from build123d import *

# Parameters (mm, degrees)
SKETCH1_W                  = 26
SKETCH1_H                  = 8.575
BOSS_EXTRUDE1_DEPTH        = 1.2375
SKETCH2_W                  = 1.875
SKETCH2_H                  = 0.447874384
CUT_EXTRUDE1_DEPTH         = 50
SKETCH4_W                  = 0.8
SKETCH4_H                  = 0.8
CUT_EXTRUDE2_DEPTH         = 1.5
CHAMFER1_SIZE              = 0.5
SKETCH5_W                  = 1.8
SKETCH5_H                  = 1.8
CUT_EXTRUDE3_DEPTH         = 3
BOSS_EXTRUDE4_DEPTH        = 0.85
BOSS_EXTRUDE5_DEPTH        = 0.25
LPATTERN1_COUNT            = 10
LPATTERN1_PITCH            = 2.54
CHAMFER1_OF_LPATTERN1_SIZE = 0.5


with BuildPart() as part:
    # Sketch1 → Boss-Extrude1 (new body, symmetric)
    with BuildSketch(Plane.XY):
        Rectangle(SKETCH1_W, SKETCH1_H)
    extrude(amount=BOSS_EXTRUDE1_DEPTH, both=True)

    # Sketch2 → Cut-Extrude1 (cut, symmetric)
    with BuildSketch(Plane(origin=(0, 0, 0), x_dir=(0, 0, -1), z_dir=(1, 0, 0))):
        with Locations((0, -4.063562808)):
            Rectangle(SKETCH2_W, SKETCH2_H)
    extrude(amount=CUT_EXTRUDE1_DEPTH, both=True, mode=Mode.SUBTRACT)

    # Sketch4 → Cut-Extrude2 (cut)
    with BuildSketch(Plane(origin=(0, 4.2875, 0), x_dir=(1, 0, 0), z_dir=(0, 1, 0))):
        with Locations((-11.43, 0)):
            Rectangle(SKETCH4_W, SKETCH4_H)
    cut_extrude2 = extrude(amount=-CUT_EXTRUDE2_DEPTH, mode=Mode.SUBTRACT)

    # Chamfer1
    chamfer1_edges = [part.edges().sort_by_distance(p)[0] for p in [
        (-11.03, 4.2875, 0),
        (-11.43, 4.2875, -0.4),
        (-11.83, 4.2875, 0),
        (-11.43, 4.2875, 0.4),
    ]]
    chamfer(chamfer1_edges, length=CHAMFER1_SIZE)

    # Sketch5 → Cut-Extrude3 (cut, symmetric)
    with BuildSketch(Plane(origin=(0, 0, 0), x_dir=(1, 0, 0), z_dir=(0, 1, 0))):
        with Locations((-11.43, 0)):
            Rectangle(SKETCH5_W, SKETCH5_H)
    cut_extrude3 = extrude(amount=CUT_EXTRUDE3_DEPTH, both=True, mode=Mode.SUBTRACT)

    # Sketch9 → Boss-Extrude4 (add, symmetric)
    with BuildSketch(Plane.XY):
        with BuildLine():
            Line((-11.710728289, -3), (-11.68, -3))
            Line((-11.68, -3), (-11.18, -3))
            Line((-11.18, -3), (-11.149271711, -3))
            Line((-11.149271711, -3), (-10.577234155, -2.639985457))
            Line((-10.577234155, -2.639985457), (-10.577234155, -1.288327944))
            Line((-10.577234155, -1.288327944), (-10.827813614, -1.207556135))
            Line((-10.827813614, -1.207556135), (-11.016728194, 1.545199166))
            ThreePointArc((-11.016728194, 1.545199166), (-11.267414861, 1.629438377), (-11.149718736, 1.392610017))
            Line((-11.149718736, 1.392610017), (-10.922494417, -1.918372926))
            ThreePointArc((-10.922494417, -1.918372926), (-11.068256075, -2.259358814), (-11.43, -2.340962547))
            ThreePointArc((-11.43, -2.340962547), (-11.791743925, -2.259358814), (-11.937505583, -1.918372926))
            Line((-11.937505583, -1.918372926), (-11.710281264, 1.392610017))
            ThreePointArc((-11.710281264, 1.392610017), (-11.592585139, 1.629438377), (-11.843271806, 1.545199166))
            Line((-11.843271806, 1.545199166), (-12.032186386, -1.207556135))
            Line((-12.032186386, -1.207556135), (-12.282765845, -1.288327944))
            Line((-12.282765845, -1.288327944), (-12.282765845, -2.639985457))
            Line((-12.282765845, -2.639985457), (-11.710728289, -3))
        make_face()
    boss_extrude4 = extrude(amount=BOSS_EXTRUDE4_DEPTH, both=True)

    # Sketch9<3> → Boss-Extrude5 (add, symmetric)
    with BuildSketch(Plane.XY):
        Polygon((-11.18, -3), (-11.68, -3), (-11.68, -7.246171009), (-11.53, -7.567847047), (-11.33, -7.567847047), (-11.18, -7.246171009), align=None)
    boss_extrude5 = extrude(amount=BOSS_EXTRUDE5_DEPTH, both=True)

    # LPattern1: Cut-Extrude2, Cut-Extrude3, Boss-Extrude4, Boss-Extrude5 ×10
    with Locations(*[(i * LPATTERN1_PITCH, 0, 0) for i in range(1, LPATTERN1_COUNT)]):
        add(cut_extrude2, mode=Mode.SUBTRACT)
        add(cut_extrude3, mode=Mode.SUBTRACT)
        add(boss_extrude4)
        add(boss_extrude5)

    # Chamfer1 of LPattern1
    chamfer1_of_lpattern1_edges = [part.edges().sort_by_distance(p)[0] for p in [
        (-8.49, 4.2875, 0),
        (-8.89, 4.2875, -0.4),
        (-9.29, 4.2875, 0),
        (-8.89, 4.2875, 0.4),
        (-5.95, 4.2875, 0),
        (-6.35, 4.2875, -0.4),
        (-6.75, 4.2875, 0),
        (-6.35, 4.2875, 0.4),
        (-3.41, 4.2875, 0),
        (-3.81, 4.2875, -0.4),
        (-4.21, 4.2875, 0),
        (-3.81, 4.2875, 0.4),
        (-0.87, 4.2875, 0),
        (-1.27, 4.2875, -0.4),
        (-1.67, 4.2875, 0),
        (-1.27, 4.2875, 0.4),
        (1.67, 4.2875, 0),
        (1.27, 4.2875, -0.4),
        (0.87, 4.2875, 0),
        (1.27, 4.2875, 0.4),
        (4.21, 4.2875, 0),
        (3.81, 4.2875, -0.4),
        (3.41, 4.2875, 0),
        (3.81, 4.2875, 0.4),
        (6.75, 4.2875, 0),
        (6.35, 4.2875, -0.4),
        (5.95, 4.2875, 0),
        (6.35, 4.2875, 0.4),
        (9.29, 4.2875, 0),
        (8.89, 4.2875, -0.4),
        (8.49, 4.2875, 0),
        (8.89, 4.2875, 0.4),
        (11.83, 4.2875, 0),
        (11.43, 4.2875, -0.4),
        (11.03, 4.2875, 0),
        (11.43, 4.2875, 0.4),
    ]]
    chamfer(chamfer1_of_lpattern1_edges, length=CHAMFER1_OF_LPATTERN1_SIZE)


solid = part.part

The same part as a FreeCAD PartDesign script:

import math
import FreeCAD as App
import Part
import Sketcher

V = App.Vector
Q = App.Units.Quantity


def edges_at(feature, points):
    """Names of the edges that pass closest to the given points."""
    edges = feature.Shape.Edges
    near = lambda p: min(range(len(edges)), key=lambda i: edges[i].distToShape(Part.Vertex(*p))[0])
    return sorted({f"Edge{near(p) + 1}" for p in points})


def add_polygon(sketch, points):
    """Adds a closed chain of lines whose ends are joined by coincident constraints."""
    first, n = sketch.GeometryCount, len(points)
    for a, b in zip(points, points[1:] + points[:1]):
        sketch.addGeometry(Part.LineSegment(App.Vector(*a, 0), App.Vector(*b, 0)), False)
    for i in range(n):
        sketch.addConstraint(Sketcher.Constraint("Coincident", first + i, 2, first + (i + 1) % n, 1))

doc = App.newDocument("Part")
body = doc.addObject("PartDesign::Body", "Body")

# Sketch on XY plane
sketch1 = body.newObject("Sketcher::SketchObject", "Sketch")
sketch1.AttachmentSupport = (doc.getObject("XY_Plane"), [""])
sketch1.MapMode = "FlatFace"
add_polygon(sketch1, [(-13, 4), (-13, -4), (13, -4), (13, 4)])  # lines 0-3
sketch1.addConstraint([
    Sketcher.Constraint("Vertical", 0),
    Sketcher.Constraint("Horizontal", 1),
    Sketcher.Constraint("Vertical", 2),
    Sketcher.Constraint("Horizontal", 3),
    Sketcher.Constraint("Symmetric", 0, 2, 2, 2, -1, 1),
    Sketcher.Constraint("DistanceX", 1, 1, 1, 2, 26.0),
    Sketcher.Constraint("DistanceY", 0, 2, 0, 1, 8.575),
])
pad1 = body.newObject("PartDesign::Pad", "Pad")
pad1.Profile = sketch1
pad1.Length = 2.475
pad1.Midplane = True

# Sketch on YZ plane
sketch2 = body.newObject("Sketcher::SketchObject", "Sketch001")
sketch2.AttachmentSupport = (doc.getObject("YZ_Plane"), [""])
sketch2.MapMode = "FlatFace"
add_polygon(sketch2, [(-3.84, 0.94), (-4.29, 0.94), (-4.29, -0.94), (-3.84, -0.94)])  # lines 0-3
sketch2.addConstraint([
    Sketcher.Constraint("Horizontal", 0),
    Sketcher.Constraint("Vertical", 1),
    Sketcher.Constraint("Horizontal", 2),
    Sketcher.Constraint("Vertical", 3),
    Sketcher.Constraint("DistanceY", 1, 2, 1, 1, 1.875),
    Sketcher.Constraint("DistanceX", 0, 2, -1, 1, 4.2875),
    Sketcher.Constraint("DistanceY", -1, 1, 0, 2, 0.9375),
    Sketcher.Constraint("DistanceX", 0, 2, 0, 1, 0.447874),
])
pocket1 = body.newObject("PartDesign::Pocket", "Pocket")
pocket1.Profile = sketch2
pocket1.Length = 100
pocket1.Midplane = True

# Sketch on XZ plane
sketch3 = body.newObject("Sketcher::SketchObject", "Sketch002")
sketch3.AttachmentSupport = (doc.getObject("XZ_Plane"), [""])
sketch3.MapMode = "FlatFace"
sketch3.AttachmentOffset = App.Placement(V(0, 0, -4.2875), App.Rotation())
add_polygon(sketch3, [(-11.8, -0.4), (-11.8, 0.4), (-11, 0.4), (-11, -0.4)])  # lines 0-3
sketch3.addConstraint([
    Sketcher.Constraint("Vertical", 0),
    Sketcher.Constraint("Horizontal", 1),
    Sketcher.Constraint("Vertical", 2),
    Sketcher.Constraint("Horizontal", 3),
    Sketcher.Constraint("Equal", 3, 0),
    Sketcher.Constraint("DistanceX", 1, 1, 1, 2, 0.8),
    Sketcher.Constraint("DistanceY", -1, 1, 0, 2, 0.4),
    Sketcher.Constraint("DistanceX", 0, 2, -1, 1, 11.83),
])
pocket2 = body.newObject("PartDesign::Pocket", "Pocket001")
pocket2.Profile = sketch3
pocket2.Length = 1.5
pocket2.Reversed = True
doc.recompute()

chamfer = body.newObject("PartDesign::Chamfer", "Chamfer")
chamfer.Base = (pocket2, edges_at(pocket2, [
    (-11.03, 4.287, 0),
    (-11.43, 4.287, -0.4),
    (-11.83, 4.287, 0),
    (-11.43, 4.287, 0.4),
]))
chamfer.Size = 0.5

# Sketch on XZ plane
sketch4 = body.newObject("Sketcher::SketchObject", "Sketch003")
sketch4.AttachmentSupport = (doc.getObject("XZ_Plane"), [""])
sketch4.MapMode = "FlatFace"
add_polygon(sketch4, [(-12.3, -0.9), (-12.3, 0.9), (-10.5, 0.9), (-10.5, -0.9)])  # lines 0-3
sketch4.addConstraint([
    Sketcher.Constraint("Vertical", 0),
    Sketcher.Constraint("Horizontal", 1),
    Sketcher.Constraint("Vertical", 2),
    Sketcher.Constraint("Horizontal", 3),
    Sketcher.Constraint("Equal", 3, 0),
    Sketcher.Constraint("DistanceX", 1, 1, 1, 2, 1.8),
    Sketcher.Constraint("DistanceY", -1, 1, 0, 2, 0.9),
    Sketcher.Constraint("DistanceX", 0, 2, -1, 1, 12.33),
])
pocket3 = body.newObject("PartDesign::Pocket", "Pocket002")
pocket3.Profile = sketch4
pocket3.Length = 6
pocket3.Midplane = True

# Sketch on XY plane
sketch5 = body.newObject("Sketcher::SketchObject", "Sketch004")
sketch5.AttachmentSupport = (doc.getObject("XY_Plane"), [""])
sketch5.MapMode = "FlatFace"
sketch5.addGeometry([
    Part.LineSegment(V(-11.71, -3, 0), V(-11.15, -3, 0)),  # 0
    Part.LineSegment(V(-11.15, -3, 0), V(-10.58, -2.64, 0)),  # 1
    Part.LineSegment(V(-10.58, -2.64, 0), V(-10.58, -1.29, 0)),  # 2
    Part.LineSegment(V(-10.58, -1.29, 0), V(-10.83, -1.21, 0)),  # 3
    Part.LineSegment(V(-10.83, -1.21, 0), V(-11.02, 1.55, 0)),  # 4
    Part.ArcOfCircle(Part.Circle(V(-11.16, 1.54, 0), V(0, 0, 1), 0.14), math.radians(4), math.radians(274)),  # 5
    Part.LineSegment(V(-11.15, 1.39, 0), V(-10.92, -1.92, 0)),  # 6
    Part.ArcOfCircle(Part.Circle(V(-11.33, -1.95, 0), V(0, 0, 1), 0.41), math.radians(-104), math.radians(4)),  # 7
    Part.ArcOfCircle(Part.Circle(V(-11.53, -1.95, 0), V(0, 0, 1), 0.41), math.radians(176), math.radians(284)),  # 8
    Part.LineSegment(V(-11.94, -1.92, 0), V(-11.71, 1.39, 0)),  # 9
    Part.ArcOfCircle(Part.Circle(V(-11.7, 1.54, 0), V(0, 0, 1), 0.14), math.radians(-94), math.radians(176)),  # 10
    Part.LineSegment(V(-11.84, 1.55, 0), V(-12.03, -1.21, 0)),  # 11
    Part.LineSegment(V(-12.03, -1.21, 0), V(-12.28, -1.29, 0)),  # 12
    Part.LineSegment(V(-12.28, -1.29, 0), V(-12.28, -2.64, 0)),  # 13
    Part.LineSegment(V(-12.28, -2.64, 0), V(-11.71, -3, 0)),  # 14
], False)
sketch5.addConstraint([
    Sketcher.Constraint("Coincident", 0, 2, 1, 1),
    Sketcher.Constraint("Coincident", 1, 2, 2, 1),
    Sketcher.Constraint("Coincident", 2, 2, 3, 1),
    Sketcher.Constraint("Coincident", 3, 2, 4, 1),
    Sketcher.Constraint("Tangent", 4, 2, 5, 1),
    Sketcher.Constraint("Coincident", 5, 2, 6, 1),
    Sketcher.Constraint("Tangent", 6, 2, 7, 2),
    Sketcher.Constraint("Coincident", 7, 1, 8, 2),
    Sketcher.Constraint("Tangent", 8, 1, 9, 1),
    Sketcher.Constraint("Coincident", 9, 2, 10, 1),
    Sketcher.Constraint("Tangent", 10, 2, 11, 1),
    Sketcher.Constraint("Coincident", 11, 2, 12, 1),
    Sketcher.Constraint("Coincident", 12, 2, 13, 1),
    Sketcher.Constraint("Coincident", 13, 2, 14, 1),
    Sketcher.Constraint("Coincident", 14, 2, 0, 1),
    Sketcher.Constraint("Horizontal", 0),
    Sketcher.Constraint("Vertical", 2),
    Sketcher.Constraint("Vertical", 13),
    Sketcher.Constraint("Equal", 7, 8),
    Sketcher.Constraint("Equal", 5, 10),
    Sketcher.Constraint("Parallel", 4, 6),
    Sketcher.Constraint("Parallel", 9, 11),
    Sketcher.Constraint("Horizontal", 7, 3, 8, 3),
    Sketcher.Constraint("Horizontal", 5, 3, 10, 3),
    Sketcher.Constraint("Horizontal", 6, 2, 8, 1),
    Sketcher.Constraint("Horizontal", 5, 2, 9, 2),
    Sketcher.Constraint("Horizontal", 3, 2, 11, 2),
    Sketcher.Constraint("Horizontal", 2, 2, 12, 2),
    Sketcher.Constraint("Horizontal", 1, 2, 13, 2),
    Sketcher.Constraint("Equal", 3, 12),
    Sketcher.Constraint("Equal", 1, 14),
    Sketcher.Constraint("DistanceY", 0, 2, -1, 1, 3.0),
    Sketcher.Constraint("DistanceX", 7, 1, -1, 1, 11.43),
    Sketcher.Constraint("Radius", 5, 0.143126),
    Sketcher.Constraint("Radius", 7, 0.407422),
    Sketcher.Constraint("DistanceY", -1, 1, 5, 3, 1.5354),
    Sketcher.Constraint("DistanceY", -1, 1, 4, 2, 1.545199),
    Sketcher.Constraint("DistanceX", 5, 3, 5, 2, 0.009799),
    Sketcher.Constraint("Distance", 4, 2.75923),
    Sketcher.Constraint("Distance", 6, 3.318771),
    Sketcher.Constraint("DistanceX", 0, 1, 0, 2, 0.561457),
    Sketcher.Constraint("DistanceY", 2, 1, 2, 2, 1.351658),
    Sketcher.Constraint("DistanceX", 5, 3, -1, 1, 11.159518),
    Sketcher.Constraint("DistanceY", 7, 3, 2, 2, 0.65794),
    Sketcher.Constraint("DistanceX", 3, 2, 2, 2, 0.250579),
])
pad2 = body.newObject("PartDesign::Pad", "Pad001")
pad2.Profile = sketch5
pad2.Length = 1.7
pad2.Midplane = True

# Sketch on XY plane
sketch6 = body.newObject("Sketcher::SketchObject", "Sketch005")
sketch6.AttachmentSupport = (doc.getObject("XY_Plane"), [""])
sketch6.MapMode = "FlatFace"
add_polygon(sketch6, [(-11.18, -3), (-11.68, -3), (-11.68, -7.25), (-11.53, -7.57), (-11.33, -7.57), (-11.18, -7.25)])  # lines 0-5
sketch6.addConstraint([
    Sketcher.Constraint("Horizontal", 0),
    Sketcher.Constraint("Vertical", 1),
    Sketcher.Constraint("Horizontal", 3),
    Sketcher.Constraint("Vertical", 5),
    Sketcher.Constraint("Horizontal", 1, 2, 4, 2),
    Sketcher.Constraint("Equal", 2, 4),
    Sketcher.Constraint("Angle", 2, Q("-65 deg")),
    Sketcher.Constraint("DistanceX", 0, 2, 0, 1, 0.5),
    Sketcher.Constraint("DistanceX", 3, 1, 3, 2, 0.2),
    Sketcher.Constraint("DistanceY", 0, 2, -1, 1, 3.0),
    Sketcher.Constraint("DistanceX", 0, 2, -1, 1, 11.68),
    Sketcher.Constraint("DistanceY", 1, 2, 1, 1, 4.246171),
])
pad3 = body.newObject("PartDesign::Pad", "Pad002")
pad3.Profile = sketch6
pad3.Length = 0.5
pad3.Midplane = True
doc.recompute()

linearpattern = body.newObject("PartDesign::LinearPattern", "LinearPattern")
linearpattern.Originals = [pocket2, pocket3, pad2, pad3]
linearpattern.Direction = (doc.getObject("X_Axis"), [""])
linearpattern.Mode = "offset"
linearpattern.Offset = 2.54
linearpattern.Occurrences = 10
body.Tip = linearpattern
doc.recompute()

chamfer2 = body.newObject("PartDesign::Chamfer", "Chamfer001")
chamfer2.Base = (linearpattern, edges_at(linearpattern, [
    (-8.49, 4.287, 0),
    (-8.89, 4.287, -0.4),
    (-9.29, 4.287, 0),
    (-8.89, 4.287, 0.4),
    (-5.95, 4.287, 0),
    (-6.35, 4.287, -0.4),
    (-6.75, 4.287, 0),
    (-6.35, 4.287, 0.4),
    (-3.41, 4.287, 0),
    (-3.81, 4.287, -0.4),
    (-4.21, 4.287, 0),
    (-3.81, 4.287, 0.4),
    (-0.87, 4.287, 0),
    (-1.27, 4.287, -0.4),
    (-1.67, 4.287, 0),
    (-1.27, 4.287, 0.4),
    (1.67, 4.287, 0),
    (1.27, 4.287, -0.4),
    (0.87, 4.287, 0),
    (1.27, 4.287, 0.4),
    (4.21, 4.287, 0),
    (3.81, 4.287, -0.4),
    (3.41, 4.287, 0),
    (3.81, 4.287, 0.4),
    (6.75, 4.287, 0),
    (6.35, 4.287, -0.4),
    (5.95, 4.287, 0),
    (6.35, 4.287, 0.4),
    (9.29, 4.287, 0),
    (8.89, 4.287, -0.4),
    (8.49, 4.287, 0),
    (8.89, 4.287, 0.4),
    (11.83, 4.287, 0),
    (11.43, 4.287, -0.4),
    (11.03, 4.287, 0),
    (11.43, 4.287, 0.4),
]))
chamfer2.Size = 0.5

doc.recompute()
